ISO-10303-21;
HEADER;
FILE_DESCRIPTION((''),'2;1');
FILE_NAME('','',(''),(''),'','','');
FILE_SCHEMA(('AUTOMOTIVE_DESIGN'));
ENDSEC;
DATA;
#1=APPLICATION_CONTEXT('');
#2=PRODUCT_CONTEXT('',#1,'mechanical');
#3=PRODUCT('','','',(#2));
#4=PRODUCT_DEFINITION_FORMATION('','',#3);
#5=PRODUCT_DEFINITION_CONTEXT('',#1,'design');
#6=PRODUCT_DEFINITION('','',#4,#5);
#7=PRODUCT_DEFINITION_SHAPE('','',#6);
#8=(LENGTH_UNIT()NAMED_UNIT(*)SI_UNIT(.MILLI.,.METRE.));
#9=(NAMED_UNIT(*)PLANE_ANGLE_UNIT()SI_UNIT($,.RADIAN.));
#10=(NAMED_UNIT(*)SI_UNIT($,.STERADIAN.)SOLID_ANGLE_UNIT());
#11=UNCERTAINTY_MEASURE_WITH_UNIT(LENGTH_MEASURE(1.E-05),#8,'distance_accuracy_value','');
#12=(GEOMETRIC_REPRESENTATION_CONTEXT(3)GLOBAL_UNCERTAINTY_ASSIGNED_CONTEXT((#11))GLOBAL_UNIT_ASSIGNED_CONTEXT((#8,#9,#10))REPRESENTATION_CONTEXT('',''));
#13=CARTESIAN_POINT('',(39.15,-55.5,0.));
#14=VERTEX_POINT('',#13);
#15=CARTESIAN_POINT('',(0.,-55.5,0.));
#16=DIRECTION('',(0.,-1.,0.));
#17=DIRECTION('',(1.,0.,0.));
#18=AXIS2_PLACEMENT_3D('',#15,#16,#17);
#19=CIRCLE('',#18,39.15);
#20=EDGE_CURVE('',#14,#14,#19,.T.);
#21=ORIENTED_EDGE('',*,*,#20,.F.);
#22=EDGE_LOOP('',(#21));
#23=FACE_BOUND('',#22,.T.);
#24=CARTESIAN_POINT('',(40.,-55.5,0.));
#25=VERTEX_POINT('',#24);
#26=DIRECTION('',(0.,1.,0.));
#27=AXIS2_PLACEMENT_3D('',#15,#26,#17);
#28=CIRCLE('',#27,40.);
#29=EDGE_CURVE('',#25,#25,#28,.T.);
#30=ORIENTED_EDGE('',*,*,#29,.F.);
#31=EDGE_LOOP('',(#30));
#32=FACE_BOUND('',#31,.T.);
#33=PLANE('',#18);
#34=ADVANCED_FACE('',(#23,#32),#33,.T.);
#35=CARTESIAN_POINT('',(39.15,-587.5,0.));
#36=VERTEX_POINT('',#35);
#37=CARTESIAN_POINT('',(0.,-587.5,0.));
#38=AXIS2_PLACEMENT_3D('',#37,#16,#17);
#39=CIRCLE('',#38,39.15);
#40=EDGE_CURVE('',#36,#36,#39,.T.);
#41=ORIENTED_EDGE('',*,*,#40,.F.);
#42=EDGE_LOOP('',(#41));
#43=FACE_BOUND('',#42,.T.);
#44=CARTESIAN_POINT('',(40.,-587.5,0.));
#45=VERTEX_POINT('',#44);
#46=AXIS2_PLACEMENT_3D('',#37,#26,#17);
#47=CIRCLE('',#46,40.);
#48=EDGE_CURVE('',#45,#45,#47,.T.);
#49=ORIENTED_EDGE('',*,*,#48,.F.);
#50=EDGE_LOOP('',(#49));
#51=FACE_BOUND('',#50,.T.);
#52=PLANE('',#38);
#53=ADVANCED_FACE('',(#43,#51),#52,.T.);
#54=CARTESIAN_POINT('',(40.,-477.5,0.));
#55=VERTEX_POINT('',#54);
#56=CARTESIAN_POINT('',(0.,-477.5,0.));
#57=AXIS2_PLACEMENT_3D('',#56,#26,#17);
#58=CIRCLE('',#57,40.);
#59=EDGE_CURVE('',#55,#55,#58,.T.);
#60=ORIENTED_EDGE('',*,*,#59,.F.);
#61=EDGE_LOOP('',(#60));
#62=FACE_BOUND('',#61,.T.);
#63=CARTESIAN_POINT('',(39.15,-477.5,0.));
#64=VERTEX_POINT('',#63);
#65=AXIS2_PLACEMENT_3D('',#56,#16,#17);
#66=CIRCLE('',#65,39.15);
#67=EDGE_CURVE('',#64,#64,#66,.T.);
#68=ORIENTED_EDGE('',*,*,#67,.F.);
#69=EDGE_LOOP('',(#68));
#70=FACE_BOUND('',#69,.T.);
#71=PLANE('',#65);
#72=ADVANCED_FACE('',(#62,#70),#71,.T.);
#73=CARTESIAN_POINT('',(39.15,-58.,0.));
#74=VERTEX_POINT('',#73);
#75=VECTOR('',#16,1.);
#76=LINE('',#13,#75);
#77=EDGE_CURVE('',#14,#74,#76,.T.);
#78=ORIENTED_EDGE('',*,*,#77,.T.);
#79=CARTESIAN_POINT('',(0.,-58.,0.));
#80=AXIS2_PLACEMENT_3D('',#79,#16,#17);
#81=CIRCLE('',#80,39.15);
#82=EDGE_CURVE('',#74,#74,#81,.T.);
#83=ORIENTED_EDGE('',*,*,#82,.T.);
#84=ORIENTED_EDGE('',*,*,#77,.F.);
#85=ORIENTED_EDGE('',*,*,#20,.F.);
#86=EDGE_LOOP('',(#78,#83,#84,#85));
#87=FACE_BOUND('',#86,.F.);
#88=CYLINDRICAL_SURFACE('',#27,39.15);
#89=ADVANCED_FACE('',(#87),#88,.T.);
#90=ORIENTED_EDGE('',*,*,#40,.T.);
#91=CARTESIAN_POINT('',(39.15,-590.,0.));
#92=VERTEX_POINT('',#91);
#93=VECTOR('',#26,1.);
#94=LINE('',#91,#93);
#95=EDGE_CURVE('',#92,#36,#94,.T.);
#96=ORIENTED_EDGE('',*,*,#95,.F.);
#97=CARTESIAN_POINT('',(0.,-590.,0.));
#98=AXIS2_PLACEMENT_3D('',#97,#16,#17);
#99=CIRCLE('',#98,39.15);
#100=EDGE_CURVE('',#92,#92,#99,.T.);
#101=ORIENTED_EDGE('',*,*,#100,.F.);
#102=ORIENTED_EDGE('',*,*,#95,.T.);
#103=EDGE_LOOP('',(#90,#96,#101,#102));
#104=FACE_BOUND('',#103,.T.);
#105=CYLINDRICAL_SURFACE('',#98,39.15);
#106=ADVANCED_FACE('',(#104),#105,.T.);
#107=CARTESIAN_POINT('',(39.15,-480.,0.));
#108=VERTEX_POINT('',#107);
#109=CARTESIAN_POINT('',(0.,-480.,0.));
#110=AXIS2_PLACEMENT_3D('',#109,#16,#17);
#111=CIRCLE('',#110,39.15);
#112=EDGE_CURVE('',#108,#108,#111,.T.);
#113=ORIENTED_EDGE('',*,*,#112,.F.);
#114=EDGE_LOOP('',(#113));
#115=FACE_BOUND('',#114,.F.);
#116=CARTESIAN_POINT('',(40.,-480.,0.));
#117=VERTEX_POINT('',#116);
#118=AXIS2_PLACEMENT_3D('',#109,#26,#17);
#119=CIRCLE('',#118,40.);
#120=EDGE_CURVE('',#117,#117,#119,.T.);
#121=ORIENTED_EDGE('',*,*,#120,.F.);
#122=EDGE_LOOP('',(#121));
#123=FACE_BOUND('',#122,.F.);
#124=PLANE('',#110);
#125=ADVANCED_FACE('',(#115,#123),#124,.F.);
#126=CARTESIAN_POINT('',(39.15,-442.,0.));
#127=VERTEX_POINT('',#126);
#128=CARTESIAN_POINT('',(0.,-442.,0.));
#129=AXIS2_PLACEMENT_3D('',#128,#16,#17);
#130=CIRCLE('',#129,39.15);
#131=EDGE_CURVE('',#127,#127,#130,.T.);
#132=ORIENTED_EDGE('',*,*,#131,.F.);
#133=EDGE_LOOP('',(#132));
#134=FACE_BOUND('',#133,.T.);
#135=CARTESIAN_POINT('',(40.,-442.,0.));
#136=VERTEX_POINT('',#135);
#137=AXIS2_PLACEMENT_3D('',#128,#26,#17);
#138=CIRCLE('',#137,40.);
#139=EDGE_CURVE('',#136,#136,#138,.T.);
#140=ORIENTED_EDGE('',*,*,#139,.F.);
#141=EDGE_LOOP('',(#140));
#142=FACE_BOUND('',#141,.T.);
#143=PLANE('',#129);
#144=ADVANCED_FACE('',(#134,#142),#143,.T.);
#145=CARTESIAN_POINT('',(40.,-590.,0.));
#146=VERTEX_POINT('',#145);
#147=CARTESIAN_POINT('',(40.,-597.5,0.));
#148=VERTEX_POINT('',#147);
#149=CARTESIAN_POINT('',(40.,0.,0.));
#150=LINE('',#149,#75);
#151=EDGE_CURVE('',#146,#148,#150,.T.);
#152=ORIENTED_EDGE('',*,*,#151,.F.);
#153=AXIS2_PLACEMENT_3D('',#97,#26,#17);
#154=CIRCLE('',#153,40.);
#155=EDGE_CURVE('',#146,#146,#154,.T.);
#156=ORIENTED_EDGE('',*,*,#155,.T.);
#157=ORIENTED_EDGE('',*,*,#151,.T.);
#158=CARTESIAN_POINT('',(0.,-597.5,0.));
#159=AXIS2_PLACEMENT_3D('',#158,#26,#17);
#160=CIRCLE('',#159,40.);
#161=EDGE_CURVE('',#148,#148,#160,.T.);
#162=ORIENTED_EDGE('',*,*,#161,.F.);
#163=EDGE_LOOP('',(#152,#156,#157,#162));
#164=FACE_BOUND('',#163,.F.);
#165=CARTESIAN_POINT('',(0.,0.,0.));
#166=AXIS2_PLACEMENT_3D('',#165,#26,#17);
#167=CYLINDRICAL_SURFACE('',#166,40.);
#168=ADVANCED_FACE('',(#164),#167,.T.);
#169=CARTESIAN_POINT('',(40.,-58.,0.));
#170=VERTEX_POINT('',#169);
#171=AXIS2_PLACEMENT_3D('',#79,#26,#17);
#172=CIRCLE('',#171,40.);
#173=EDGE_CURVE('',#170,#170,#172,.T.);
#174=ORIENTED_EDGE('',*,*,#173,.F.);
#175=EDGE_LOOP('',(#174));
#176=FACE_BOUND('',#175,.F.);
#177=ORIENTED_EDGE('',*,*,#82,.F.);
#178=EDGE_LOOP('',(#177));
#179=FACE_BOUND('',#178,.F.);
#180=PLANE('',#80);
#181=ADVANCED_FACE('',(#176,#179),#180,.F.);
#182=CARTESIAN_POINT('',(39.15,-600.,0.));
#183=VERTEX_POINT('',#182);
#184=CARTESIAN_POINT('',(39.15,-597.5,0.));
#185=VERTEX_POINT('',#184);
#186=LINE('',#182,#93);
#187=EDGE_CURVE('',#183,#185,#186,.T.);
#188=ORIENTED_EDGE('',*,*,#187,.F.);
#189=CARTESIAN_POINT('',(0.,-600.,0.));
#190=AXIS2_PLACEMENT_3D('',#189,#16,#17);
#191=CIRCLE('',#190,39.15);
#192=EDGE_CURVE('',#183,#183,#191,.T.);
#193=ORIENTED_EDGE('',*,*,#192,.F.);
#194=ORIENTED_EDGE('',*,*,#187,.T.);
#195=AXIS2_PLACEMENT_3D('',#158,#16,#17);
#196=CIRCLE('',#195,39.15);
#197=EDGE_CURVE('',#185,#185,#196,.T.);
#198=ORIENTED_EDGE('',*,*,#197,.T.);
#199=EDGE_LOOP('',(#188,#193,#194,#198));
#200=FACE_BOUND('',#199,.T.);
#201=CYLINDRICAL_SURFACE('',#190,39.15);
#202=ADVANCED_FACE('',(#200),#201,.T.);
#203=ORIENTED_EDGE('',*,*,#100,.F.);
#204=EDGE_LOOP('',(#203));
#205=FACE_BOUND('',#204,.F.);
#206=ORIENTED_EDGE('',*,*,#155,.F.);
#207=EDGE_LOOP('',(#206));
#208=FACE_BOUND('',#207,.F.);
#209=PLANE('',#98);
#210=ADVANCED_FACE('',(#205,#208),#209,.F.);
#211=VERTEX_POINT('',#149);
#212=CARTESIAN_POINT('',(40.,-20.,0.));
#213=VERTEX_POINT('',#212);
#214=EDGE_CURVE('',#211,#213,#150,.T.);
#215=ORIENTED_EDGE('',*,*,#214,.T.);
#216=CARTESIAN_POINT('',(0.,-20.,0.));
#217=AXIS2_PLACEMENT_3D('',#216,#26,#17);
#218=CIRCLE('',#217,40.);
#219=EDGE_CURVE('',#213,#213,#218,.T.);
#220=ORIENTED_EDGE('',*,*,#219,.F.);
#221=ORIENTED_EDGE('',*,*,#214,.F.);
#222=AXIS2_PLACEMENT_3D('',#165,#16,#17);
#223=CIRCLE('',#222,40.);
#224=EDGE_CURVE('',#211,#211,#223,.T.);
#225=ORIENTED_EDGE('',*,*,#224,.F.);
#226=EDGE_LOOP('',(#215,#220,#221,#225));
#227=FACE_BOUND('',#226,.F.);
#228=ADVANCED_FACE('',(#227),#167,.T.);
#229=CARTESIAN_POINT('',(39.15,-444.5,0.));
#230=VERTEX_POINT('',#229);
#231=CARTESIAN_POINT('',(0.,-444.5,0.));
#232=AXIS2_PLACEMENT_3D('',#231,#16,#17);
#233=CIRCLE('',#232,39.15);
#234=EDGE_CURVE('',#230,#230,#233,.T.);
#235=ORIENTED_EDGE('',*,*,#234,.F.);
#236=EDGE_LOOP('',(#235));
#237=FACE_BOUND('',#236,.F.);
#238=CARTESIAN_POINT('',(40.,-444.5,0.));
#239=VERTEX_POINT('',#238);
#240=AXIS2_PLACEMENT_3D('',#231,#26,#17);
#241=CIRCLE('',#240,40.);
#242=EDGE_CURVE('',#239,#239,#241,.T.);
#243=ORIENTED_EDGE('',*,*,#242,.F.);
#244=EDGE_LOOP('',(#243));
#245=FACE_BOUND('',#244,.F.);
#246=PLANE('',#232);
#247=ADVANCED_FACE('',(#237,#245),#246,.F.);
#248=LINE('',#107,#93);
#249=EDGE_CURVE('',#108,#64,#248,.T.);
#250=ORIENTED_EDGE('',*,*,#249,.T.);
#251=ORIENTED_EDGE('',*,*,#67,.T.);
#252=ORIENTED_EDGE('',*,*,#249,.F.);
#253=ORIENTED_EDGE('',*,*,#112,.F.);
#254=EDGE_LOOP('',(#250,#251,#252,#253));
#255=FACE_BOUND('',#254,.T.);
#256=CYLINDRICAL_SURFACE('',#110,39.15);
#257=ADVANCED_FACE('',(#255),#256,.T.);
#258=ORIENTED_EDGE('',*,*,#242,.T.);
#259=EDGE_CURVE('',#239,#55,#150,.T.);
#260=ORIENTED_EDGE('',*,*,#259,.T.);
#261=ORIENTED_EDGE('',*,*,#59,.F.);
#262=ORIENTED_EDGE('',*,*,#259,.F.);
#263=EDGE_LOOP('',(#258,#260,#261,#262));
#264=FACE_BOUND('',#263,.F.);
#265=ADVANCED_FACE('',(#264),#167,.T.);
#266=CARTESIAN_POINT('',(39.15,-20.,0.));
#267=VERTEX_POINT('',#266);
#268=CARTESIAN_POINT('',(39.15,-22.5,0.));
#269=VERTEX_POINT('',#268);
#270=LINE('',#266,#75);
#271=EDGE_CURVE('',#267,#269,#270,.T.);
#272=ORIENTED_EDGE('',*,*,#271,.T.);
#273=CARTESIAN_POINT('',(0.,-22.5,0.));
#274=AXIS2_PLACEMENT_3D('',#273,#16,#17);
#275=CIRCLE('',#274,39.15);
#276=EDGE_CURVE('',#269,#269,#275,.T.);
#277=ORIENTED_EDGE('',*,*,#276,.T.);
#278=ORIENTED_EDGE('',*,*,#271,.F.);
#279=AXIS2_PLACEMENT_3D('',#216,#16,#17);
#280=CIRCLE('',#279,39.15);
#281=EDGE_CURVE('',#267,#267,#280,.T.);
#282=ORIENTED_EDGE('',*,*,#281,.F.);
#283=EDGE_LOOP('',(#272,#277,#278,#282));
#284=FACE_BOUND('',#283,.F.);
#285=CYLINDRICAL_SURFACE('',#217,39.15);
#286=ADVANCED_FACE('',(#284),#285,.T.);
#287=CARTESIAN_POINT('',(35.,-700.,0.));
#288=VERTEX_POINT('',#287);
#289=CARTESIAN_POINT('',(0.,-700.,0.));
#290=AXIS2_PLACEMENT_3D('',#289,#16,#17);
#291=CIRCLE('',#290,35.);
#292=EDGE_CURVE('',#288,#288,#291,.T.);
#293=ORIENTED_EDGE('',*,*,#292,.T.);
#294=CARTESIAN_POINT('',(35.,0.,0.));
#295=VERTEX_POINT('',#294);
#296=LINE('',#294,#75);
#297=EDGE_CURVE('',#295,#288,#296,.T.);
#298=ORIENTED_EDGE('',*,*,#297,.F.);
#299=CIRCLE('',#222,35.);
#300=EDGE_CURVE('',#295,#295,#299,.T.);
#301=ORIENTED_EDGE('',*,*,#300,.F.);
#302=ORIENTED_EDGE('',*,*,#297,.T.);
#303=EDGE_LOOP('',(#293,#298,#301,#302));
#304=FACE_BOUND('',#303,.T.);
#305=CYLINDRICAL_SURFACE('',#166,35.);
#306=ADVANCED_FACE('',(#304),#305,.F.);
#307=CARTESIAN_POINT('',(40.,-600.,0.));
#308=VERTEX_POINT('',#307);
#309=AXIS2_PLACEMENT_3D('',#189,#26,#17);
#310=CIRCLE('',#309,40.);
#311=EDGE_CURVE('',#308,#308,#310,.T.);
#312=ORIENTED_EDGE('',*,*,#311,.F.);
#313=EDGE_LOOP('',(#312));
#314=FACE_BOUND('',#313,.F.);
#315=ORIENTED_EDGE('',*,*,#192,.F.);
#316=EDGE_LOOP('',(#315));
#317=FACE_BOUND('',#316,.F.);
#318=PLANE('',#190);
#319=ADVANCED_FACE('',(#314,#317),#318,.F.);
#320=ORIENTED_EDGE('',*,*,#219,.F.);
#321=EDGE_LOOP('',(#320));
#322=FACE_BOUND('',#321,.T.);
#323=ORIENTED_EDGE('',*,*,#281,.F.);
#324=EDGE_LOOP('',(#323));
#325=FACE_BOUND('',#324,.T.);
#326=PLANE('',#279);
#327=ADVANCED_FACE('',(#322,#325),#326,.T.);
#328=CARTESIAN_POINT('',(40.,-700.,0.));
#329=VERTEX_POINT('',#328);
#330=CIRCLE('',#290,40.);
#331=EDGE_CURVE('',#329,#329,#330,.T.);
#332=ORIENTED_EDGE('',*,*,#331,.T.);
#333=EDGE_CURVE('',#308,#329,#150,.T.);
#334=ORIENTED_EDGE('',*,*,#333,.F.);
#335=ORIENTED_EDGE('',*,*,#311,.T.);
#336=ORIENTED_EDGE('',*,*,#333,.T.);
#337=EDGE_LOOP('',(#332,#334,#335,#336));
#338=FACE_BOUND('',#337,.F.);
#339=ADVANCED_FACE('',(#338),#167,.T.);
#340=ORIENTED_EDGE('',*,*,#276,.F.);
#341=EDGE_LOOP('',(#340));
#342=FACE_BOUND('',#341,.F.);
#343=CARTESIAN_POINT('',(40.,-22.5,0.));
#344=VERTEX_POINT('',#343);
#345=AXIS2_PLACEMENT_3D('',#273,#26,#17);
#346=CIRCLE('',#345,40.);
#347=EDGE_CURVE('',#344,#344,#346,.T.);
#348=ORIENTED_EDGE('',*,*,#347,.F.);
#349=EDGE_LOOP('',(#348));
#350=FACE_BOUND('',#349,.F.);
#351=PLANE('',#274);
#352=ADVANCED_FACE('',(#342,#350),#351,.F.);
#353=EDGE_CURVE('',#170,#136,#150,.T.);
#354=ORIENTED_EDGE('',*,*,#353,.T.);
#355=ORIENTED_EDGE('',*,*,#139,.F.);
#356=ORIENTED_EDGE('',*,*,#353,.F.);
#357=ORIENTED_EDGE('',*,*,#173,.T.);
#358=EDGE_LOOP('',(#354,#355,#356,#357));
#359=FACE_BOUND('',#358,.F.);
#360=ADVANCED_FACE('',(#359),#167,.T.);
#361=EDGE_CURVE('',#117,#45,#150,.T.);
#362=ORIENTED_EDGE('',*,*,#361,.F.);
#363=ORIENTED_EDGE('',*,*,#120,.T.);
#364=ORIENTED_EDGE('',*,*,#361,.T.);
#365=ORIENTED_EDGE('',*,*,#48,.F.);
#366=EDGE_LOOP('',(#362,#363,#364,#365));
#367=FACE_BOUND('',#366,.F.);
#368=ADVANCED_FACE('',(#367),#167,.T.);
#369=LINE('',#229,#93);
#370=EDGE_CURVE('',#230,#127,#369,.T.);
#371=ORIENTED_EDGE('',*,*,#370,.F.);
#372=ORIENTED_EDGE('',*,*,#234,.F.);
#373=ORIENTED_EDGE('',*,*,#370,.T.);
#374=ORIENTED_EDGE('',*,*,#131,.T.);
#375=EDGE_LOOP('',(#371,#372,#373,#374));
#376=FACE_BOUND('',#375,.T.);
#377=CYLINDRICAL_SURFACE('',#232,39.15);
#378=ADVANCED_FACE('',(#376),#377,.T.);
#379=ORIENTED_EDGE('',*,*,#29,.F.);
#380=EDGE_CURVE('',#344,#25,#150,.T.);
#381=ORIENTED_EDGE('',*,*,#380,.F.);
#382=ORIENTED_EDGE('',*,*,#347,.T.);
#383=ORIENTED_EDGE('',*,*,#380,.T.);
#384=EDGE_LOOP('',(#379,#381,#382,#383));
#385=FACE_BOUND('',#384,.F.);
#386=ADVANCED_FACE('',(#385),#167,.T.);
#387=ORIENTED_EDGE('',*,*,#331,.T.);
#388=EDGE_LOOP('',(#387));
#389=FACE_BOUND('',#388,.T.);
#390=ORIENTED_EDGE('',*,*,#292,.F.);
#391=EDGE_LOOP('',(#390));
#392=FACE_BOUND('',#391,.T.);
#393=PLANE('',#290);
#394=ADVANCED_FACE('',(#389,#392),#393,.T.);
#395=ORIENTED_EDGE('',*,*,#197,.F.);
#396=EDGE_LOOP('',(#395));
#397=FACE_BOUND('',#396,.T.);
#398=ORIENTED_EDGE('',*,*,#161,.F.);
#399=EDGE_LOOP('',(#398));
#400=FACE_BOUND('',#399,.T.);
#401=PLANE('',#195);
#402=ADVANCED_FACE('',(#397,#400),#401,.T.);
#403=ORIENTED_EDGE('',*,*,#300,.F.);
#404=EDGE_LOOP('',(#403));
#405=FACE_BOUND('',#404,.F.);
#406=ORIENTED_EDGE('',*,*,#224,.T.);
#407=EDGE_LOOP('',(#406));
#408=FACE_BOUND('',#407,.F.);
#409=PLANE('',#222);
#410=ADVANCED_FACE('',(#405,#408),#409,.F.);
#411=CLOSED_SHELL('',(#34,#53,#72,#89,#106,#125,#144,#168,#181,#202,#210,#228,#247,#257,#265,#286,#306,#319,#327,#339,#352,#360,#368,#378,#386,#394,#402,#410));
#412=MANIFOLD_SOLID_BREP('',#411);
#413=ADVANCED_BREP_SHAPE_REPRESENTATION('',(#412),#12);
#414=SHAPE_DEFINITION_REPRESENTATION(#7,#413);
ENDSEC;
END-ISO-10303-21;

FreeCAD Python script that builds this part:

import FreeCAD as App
import Part
import Sketcher
from FreeCAD import Vector
Q = App.Units.Quantity

doc = App.newDocument("Part")
body = doc.addObject("PartDesign::Body", "Body")

sketch1 = body.newObject("Sketcher::SketchObject", "Sketch")
sketch1.AttachmentSupport = (doc.getObject("XZ_Plane"), [""])
sketch1.MapMode = "FlatFace"
sketch1.addGeometry([
    Part.Circle(Vector(0, 0, 0), Vector(0, 0, 1), 40),
    Part.Circle(Vector(0, 0, 0), Vector(0, 0, 1), 35),
], False)
sketch1.addConstraint([
    Sketcher.Constraint("Coincident", 0, 3, -1, 1),
    Sketcher.Constraint("Coincident", 1, 3, -1, 1),
    Sketcher.Constraint("Diameter", 0, Q("80 mm")),
    Sketcher.Constraint("Diameter", 1, Q("70 mm")),
])
pad1 = body.newObject("PartDesign::Pad", "Pad")
pad1.Profile = sketch1
pad1.Length = 700

sketch2 = body.newObject("Sketcher::SketchObject", "Sketch001")
sketch2.AttachmentSupport = (doc.getObject("XZ_Plane"), [""])
sketch2.MapMode = "FlatFace"
sketch2.AttachmentOffset = App.Placement(Vector(0, 0, 20), App.Rotation())
sketch2.addGeometry([
    Part.Circle(Vector(0, 0, 0), Vector(0, 0, 1), 44),
    Part.Circle(Vector(0, 0, 0), Vector(0, 0, 1), 39),
], False)
sketch2.addConstraint([
    Sketcher.Constraint("Coincident", 0, 3, -1, 1),
    Sketcher.Constraint("Coincident", 1, 3, -1, 1),
    Sketcher.Constraint("Diameter", 0, Q("88 mm")),
    Sketcher.Constraint("Diameter", 1, Q("78.3 mm")),
])
pocket1 = body.newObject("PartDesign::Pocket", "Pocket")
pocket1.Profile = sketch2
pocket1.Length = 2.5
pocket1.Reversed = True

sketch3 = body.newObject("Sketcher::SketchObject", "Sketch002")
sketch3.AttachmentSupport = (doc.getObject("XZ_Plane"), [""])
sketch3.MapMode = "FlatFace"
sketch3.AttachmentOffset = App.Placement(Vector(0, 0, 55.5), App.Rotation())
sketch3.addGeometry([
    Part.Circle(Vector(0, 0, 0), Vector(0, 0, 1), 42),
    Part.Circle(Vector(0, 0, 0), Vector(0, 0, 1), 39),
], False)
sketch3.addConstraint([
    Sketcher.Constraint("Coincident", 0, 3, -1, 1),
    Sketcher.Constraint("Coincident", 1, 3, -1, 1),
    Sketcher.Constraint("Diameter", 0, Q("85 mm")),
    Sketcher.Constraint("Diameter", 1, Q("78.3 mm")),
])
pocket2 = body.newObject("PartDesign::Pocket", "Pocket001")
pocket2.Profile = sketch3
pocket2.Length = 2.5
pocket2.Reversed = True

sketch4 = body.newObject("Sketcher::SketchObject", "Sketch003")
sketch4.AttachmentSupport = (doc.getObject("XZ_Plane"), [""])
sketch4.MapMode = "FlatFace"
sketch4.AttachmentOffset = App.Placement(Vector(0, 0, 480), App.Rotation())
sketch4.addGeometry([
    Part.Circle(Vector(0, 0, 0), Vector(0, 0, 1), 42),
    Part.Circle(Vector(0, 0, 0), Vector(0, 0, 1), 39),
], False)
sketch4.addConstraint([
    Sketcher.Constraint("Coincident", 0, 3, -1, 1),
    Sketcher.Constraint("Coincident", 1, 3, -1, 1),
    Sketcher.Constraint("Diameter", 0, Q("85 mm")),
    Sketcher.Constraint("Diameter", 1, Q("78.3 mm")),
])
pocket3 = body.newObject("PartDesign::Pocket", "Pocket002")
pocket3.Profile = sketch4
pocket3.Length = 2.5

sketch5 = body.newObject("Sketcher::SketchObject", "Sketch004")
sketch5.AttachmentSupport = (doc.getObject("XZ_Plane"), [""])
sketch5.MapMode = "FlatFace"
sketch5.AttachmentOffset = App.Placement(Vector(0, 0, 444.5), App.Rotation())
sketch5.addGeometry([
    Part.Circle(Vector(0, 0, 0), Vector(0, 0, 1), 42),
    Part.Circle(Vector(0, 0, 0), Vector(0, 0, 1), 39),
], False)
sketch5.addConstraint([
    Sketcher.Constraint("Coincident", 0, 3, -1, 1),
    Sketcher.Constraint("Coincident", 1, 3, -1, 1),
    Sketcher.Constraint("Diameter", 0, Q("85 mm")),
    Sketcher.Constraint("Diameter", 1, Q("78.3 mm")),
])
pocket4 = body.newObject("PartDesign::Pocket", "Pocket003")
pocket4.Profile = sketch5
pocket4.Length = 2.5

sketch6 = body.newObject("Sketcher::SketchObject", "Sketch005")
sketch6.AttachmentSupport = (doc.getObject("XZ_Plane"), [""])
sketch6.MapMode = "FlatFace"
sketch6.AttachmentOffset = App.Placement(Vector(0, 0, 590), App.Rotation())
sketch6.addGeometry([
    Part.Circle(Vector(0, 0, 0), Vector(0, 0, 1), 44),
    Part.Circle(Vector(0, 0, 0), Vector(0, 0, 1), 39),
], False)
sketch6.addConstraint([
    Sketcher.Constraint("Coincident", 0, 3, -1, 1),
    Sketcher.Constraint("Coincident", 1, 3, -1, 1),
    Sketcher.Constraint("Diameter", 0, Q("88 mm")),
    Sketcher.Constraint("Diameter", 1, Q("78.3 mm")),
])
pocket5 = body.newObject("PartDesign::Pocket", "Pocket004")
pocket5.Profile = sketch6
pocket5.Length = 2.5

sketch7 = body.newObject("Sketcher::SketchObject", "Sketch006")
sketch7.AttachmentSupport = (doc.getObject("XZ_Plane"), [""])
sketch7.MapMode = "FlatFace"
sketch7.AttachmentOffset = App.Placement(Vector(0, 0, 600), App.Rotation())
sketch7.addGeometry([
    Part.Circle(Vector(0, 0, 0), Vector(0, 0, 1), 44),
    Part.Circle(Vector(0, 0, 0), Vector(0, 0, 1), 39),
], False)
sketch7.addConstraint([
    Sketcher.Constraint("Coincident", 0, 3, -1, 1),
    Sketcher.Constraint("Coincident", 1, 3, -1, 1),
    Sketcher.Constraint("Diameter", 0, Q("88 mm")),
    Sketcher.Constraint("Diameter", 1, Q("78.3 mm")),
])
pocket6 = body.newObject("PartDesign::Pocket", "Pocket005")
pocket6.Profile = sketch7
pocket6.Length = 2.5

doc.recompute()
